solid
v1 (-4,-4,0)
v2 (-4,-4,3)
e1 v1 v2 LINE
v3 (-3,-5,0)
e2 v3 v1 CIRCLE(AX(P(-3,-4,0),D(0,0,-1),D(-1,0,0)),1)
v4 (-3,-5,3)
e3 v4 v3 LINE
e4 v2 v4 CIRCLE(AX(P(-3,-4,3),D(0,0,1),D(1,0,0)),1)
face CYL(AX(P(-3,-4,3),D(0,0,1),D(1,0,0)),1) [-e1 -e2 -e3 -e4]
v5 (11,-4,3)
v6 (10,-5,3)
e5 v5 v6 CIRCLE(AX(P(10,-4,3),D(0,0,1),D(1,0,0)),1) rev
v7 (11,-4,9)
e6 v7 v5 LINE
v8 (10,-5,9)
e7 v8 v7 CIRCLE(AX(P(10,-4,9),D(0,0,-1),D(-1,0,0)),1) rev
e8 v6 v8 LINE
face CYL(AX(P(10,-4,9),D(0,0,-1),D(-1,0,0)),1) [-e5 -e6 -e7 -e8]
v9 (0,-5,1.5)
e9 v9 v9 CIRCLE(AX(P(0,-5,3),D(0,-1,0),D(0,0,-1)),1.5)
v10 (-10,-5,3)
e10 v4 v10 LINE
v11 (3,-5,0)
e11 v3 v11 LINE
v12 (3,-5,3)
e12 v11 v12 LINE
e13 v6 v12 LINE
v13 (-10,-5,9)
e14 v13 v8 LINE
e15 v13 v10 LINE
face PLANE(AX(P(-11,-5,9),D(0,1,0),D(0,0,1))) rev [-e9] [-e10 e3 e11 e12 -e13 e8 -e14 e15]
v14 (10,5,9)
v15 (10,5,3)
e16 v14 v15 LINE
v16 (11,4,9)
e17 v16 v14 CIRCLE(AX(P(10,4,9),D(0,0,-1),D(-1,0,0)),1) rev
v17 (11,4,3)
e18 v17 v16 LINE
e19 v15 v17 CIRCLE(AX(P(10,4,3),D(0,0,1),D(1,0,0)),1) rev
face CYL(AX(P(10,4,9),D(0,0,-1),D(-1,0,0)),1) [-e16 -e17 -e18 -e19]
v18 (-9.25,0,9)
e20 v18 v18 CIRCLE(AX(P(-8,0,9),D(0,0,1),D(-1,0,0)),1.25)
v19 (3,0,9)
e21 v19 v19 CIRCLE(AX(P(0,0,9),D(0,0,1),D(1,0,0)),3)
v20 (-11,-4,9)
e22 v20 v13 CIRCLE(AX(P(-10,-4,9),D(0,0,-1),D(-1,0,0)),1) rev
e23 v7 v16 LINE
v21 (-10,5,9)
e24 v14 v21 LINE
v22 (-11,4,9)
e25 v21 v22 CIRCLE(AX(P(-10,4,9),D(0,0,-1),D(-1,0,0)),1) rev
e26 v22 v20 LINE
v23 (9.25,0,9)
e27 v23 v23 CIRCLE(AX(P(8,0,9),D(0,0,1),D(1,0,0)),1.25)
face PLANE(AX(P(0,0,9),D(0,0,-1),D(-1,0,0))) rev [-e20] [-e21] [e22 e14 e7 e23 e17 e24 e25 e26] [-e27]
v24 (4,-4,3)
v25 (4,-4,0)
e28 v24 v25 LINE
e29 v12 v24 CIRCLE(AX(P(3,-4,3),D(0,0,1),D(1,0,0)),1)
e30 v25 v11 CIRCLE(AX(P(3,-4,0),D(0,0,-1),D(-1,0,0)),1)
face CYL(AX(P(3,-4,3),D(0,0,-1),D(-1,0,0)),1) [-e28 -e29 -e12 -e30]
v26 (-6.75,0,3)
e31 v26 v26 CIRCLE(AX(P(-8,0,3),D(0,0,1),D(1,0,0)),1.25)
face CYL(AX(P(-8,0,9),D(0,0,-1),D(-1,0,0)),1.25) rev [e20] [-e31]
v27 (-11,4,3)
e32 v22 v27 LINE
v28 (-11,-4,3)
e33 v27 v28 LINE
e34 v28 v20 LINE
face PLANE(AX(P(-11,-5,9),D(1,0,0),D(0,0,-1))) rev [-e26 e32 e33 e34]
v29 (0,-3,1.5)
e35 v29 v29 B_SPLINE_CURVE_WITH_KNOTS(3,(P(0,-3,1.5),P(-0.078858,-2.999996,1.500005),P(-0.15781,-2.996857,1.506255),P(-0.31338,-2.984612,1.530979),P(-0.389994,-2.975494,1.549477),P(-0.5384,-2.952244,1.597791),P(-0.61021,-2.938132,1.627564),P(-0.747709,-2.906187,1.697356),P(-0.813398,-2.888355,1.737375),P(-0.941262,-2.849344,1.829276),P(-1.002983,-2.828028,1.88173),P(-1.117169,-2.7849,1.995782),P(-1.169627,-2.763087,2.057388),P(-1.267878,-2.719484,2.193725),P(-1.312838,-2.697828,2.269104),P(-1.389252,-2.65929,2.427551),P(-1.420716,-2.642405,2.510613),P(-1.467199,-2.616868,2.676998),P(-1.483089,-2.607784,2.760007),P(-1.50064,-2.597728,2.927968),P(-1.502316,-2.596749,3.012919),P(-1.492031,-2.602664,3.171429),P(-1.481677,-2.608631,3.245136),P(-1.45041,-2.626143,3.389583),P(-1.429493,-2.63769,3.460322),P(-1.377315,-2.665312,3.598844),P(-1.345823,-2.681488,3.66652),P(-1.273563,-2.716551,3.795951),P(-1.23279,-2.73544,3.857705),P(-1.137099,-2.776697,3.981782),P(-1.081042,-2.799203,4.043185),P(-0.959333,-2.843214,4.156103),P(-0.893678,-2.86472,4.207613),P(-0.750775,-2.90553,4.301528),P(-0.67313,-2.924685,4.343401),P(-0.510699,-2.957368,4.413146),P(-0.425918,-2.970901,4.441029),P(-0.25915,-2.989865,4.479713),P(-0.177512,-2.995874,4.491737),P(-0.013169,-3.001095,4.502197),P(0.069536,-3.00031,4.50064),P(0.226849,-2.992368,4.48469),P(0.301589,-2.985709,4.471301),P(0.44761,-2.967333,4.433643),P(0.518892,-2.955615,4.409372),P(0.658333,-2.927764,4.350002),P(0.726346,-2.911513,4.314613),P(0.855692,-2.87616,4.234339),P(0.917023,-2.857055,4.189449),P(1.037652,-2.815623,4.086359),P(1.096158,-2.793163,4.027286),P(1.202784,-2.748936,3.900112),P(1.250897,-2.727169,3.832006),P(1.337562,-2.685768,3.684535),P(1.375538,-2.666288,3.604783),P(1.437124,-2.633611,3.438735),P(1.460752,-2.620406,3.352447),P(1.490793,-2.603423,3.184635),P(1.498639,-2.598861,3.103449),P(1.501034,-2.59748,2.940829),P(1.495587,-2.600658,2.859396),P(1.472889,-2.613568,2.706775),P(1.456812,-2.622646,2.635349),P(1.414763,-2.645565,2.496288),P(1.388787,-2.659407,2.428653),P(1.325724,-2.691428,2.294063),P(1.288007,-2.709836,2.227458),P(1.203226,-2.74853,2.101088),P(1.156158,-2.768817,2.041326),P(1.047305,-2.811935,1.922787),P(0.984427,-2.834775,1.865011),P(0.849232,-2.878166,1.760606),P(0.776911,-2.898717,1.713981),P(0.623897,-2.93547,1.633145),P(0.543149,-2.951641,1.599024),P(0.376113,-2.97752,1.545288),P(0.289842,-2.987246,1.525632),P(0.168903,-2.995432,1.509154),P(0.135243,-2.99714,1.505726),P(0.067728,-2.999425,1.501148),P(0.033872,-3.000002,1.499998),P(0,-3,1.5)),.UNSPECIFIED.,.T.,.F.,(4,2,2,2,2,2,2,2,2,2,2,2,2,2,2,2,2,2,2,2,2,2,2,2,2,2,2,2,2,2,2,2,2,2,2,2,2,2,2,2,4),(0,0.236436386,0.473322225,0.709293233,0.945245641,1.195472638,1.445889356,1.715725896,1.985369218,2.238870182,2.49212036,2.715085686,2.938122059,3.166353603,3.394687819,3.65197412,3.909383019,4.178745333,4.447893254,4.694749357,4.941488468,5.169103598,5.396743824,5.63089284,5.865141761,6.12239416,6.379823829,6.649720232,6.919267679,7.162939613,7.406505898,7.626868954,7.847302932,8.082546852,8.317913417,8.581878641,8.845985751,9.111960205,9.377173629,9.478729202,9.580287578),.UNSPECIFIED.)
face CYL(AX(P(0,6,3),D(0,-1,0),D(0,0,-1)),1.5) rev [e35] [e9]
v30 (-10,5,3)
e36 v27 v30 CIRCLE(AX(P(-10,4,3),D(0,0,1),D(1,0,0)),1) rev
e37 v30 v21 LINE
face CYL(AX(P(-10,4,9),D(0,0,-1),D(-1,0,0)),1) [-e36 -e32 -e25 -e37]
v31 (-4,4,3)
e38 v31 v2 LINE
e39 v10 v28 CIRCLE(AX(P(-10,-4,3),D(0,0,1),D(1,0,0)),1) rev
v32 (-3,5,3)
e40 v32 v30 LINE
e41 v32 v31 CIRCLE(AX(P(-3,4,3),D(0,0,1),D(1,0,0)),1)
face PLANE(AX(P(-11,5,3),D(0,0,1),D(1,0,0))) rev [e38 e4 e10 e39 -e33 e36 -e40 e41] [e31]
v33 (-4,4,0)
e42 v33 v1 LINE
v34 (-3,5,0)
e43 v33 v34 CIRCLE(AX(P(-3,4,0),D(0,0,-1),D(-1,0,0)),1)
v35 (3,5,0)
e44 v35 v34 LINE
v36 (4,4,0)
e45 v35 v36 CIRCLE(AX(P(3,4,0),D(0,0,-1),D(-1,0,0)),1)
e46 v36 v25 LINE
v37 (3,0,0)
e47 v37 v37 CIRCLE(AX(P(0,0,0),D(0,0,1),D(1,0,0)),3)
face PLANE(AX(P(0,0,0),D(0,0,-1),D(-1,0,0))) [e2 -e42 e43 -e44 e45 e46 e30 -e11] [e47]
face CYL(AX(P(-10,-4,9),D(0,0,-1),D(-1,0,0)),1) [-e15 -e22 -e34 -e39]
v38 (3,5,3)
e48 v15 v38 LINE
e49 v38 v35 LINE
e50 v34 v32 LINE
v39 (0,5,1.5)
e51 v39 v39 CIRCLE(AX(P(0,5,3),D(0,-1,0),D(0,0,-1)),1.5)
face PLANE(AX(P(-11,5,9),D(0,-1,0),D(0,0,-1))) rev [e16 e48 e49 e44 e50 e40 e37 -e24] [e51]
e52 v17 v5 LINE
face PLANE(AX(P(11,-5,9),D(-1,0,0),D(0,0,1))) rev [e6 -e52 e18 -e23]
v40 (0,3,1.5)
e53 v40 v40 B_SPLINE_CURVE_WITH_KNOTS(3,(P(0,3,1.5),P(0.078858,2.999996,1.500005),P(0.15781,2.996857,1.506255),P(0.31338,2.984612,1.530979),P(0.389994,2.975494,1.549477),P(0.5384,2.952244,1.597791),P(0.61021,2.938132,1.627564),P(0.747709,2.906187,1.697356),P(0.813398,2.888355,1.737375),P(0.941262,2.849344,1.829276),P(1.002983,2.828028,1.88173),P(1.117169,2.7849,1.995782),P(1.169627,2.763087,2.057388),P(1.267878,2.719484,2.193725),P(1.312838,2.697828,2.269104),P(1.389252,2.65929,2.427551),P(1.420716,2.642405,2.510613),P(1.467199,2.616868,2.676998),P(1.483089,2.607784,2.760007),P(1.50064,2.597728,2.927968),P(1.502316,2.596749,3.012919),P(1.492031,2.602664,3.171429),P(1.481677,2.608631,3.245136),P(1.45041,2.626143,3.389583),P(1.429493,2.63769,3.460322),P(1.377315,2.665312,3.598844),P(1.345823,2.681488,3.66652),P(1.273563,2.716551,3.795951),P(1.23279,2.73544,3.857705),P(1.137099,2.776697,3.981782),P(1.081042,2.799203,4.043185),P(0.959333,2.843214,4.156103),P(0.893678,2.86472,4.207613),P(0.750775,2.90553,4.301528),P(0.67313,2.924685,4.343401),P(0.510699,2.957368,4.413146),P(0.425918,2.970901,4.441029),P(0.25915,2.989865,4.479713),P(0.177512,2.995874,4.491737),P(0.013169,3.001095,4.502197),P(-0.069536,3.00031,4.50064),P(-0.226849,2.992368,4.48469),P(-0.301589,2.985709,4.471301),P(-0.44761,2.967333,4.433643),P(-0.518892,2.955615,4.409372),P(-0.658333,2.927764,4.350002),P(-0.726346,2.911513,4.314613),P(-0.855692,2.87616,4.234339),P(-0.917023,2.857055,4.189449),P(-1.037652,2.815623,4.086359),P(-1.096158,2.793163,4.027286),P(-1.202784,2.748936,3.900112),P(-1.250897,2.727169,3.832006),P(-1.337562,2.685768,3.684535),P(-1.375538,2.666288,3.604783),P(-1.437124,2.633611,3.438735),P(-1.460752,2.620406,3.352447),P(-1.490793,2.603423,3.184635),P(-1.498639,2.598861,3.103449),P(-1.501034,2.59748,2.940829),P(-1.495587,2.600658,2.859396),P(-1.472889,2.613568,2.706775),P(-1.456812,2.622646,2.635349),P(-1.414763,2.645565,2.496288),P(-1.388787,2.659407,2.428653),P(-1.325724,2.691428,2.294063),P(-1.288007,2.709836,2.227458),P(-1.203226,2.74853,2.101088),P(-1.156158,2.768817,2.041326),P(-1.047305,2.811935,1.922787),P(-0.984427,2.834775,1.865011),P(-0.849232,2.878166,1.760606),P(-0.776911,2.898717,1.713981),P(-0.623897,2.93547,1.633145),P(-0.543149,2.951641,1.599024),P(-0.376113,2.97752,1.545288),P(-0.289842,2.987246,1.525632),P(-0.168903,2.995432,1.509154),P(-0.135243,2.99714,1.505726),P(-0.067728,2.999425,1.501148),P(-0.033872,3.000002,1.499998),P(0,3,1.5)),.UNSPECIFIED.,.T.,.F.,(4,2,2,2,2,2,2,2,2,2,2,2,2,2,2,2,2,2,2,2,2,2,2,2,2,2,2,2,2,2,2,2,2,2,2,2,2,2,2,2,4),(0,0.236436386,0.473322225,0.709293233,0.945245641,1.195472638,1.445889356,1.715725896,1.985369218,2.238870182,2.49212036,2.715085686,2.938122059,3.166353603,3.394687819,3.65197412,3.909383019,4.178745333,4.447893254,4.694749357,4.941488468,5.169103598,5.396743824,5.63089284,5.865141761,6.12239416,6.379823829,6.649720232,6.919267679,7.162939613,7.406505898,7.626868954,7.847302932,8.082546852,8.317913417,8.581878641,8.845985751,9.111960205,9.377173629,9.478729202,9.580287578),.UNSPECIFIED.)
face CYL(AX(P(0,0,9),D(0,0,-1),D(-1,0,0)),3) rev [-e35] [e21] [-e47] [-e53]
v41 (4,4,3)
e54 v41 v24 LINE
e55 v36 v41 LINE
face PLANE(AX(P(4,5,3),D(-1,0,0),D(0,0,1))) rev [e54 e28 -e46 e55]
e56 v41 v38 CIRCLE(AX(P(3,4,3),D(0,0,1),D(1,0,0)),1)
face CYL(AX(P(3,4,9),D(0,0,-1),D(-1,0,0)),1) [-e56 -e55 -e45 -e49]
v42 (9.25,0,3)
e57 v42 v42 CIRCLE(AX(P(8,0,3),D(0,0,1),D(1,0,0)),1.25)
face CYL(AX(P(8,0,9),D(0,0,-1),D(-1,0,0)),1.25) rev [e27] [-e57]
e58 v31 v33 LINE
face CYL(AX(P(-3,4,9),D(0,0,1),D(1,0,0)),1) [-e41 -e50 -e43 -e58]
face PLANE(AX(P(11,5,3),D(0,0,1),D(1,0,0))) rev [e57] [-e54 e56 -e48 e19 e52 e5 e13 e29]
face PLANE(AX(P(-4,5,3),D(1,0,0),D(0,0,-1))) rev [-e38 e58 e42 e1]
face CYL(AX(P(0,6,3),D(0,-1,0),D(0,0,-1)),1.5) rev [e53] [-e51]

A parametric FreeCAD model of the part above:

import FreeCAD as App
import Part
import Sketcher

V = App.Vector
Q = App.Units.Quantity


def edges_at(feature, points):
    """Names of the edges that pass closest to the given points."""
    edges = feature.Shape.Edges
    near = lambda p: min(range(len(edges)), key=lambda i: edges[i].distToShape(Part.Vertex(*p))[0])
    return sorted({f"Edge{near(p) + 1}" for p in points})

doc = App.newDocument("Part")
body = doc.addObject("PartDesign::Body", "Body")

# Sketch on XY plane
sketch1 = body.newObject("Sketcher::SketchObject", "Sketch")
sketch1.AttachmentSupport = (doc.getObject("XY_Plane"), [""])
sketch1.MapMode = "FlatFace"
sketch1.addGeometry([
    Part.LineSegment(V(-11, 5, 0), V(-11, -5, 0)),  # 0
    Part.LineSegment(V(-11, -5, 0), V(11, -5, 0)),  # 1
    Part.LineSegment(V(11, -5, 0), V(11, 5, 0)),  # 2
    Part.LineSegment(V(11, 5, 0), V(-11, 5, 0)),  # 3
    Part.Circle(V(-8, 0, 0), V(0, 0, 1), 1.2),  # 4
    Part.Circle(V(0, 0, 0), V(0, 0, 1), 3),  # 5
    Part.Circle(V(8, 0, 0), V(0, 0, 1), 1.2),  # 6
], False)
sketch1.addConstraint([
    Sketcher.Constraint("Coincident", 0, 2, 1, 1),
    Sketcher.Constraint("Coincident", 1, 2, 2, 1),
    Sketcher.Constraint("Coincident", 2, 2, 3, 1),
    Sketcher.Constraint("Coincident", 3, 2, 0, 1),
    Sketcher.Constraint("Vertical", 0),
    Sketcher.Constraint("Horizontal", 1),
    Sketcher.Constraint("Vertical", 2),
    Sketcher.Constraint("Horizontal", 3),
    Sketcher.Constraint("Coincident", 5, 3, -1, 1),
    Sketcher.Constraint("Equal", 4, 6),
    Sketcher.Constraint("Symmetric", 4, 3, 6, 3, -1, 1),
    Sketcher.Constraint("Symmetric", 0, 2, 2, 2, -1, 1),
    Sketcher.Constraint("PointOnObject", 4, 3, -1),
    Sketcher.Constraint("Diameter", 5, Q("6 mm")),
    Sketcher.Constraint("Diameter", 4, Q("2.5 mm")),
    Sketcher.Constraint("DistanceX", 1, 1, 1, 2, Q("22 mm")),
    Sketcher.Constraint("DistanceY", 0, 2, 0, 1, Q("10 mm")),
    Sketcher.Constraint("DistanceX", 4, 3, -1, 1, Q("8 mm")),
])
pad1 = body.newObject("PartDesign::Pad", "Pad")
pad1.Profile = sketch1
pad1.Length = 9

# Sketch on XZ plane
sketch2 = body.newObject("Sketcher::SketchObject", "Sketch001")
sketch2.AttachmentSupport = (doc.getObject("XZ_Plane"), [""])
sketch2.MapMode = "FlatFace"
sketch2.AttachmentOffset = App.Placement(V(0, 0, 5), App.Rotation())
sketch2.addGeometry(Part.Circle(V(0, 3, 0), V(0, 0, 1), 1.5), False)
sketch2.addConstraint([
    Sketcher.Constraint("PointOnObject", 0, 3, -2),
    Sketcher.Constraint("Diameter", 0, Q("3 mm")),
    Sketcher.Constraint("DistanceY", -1, 1, 0, 3, Q("3 mm")),
])
pocket1 = body.newObject("PartDesign::Pocket", "Pocket")
pocket1.Profile = sketch2
pocket1.Length = 11

# Sketch on XZ plane
sketch3 = body.newObject("Sketcher::SketchObject", "Sketch002")
sketch3.AttachmentSupport = (doc.getObject("XZ_Plane"), [""])
sketch3.MapMode = "FlatFace"
sketch3.AttachmentOffset = App.Placement(V(0, 0, 5), App.Rotation())
sketch3.addGeometry([
    Part.LineSegment(V(-11, 3, 0), V(-11, 0, 0)),  # 0
    Part.LineSegment(V(-11, 0, 0), V(-4, 0, 0)),  # 1
    Part.LineSegment(V(-4, 0, 0), V(-4, 3, 0)),  # 2
    Part.LineSegment(V(-4, 3, 0), V(-11, 3, 0)),  # 3
    Part.LineSegment(V(4, 3, 0), V(4, 0, 0)),  # 4
    Part.LineSegment(V(4, 0, 0), V(11, 0, 0)),  # 5
    Part.LineSegment(V(11, 0, 0), V(11, 3, 0)),  # 6
    Part.LineSegment(V(11, 3, 0), V(4, 3, 0)),  # 7
], False)
sketch3.addConstraint([
    Sketcher.Constraint("Coincident", 0, 2, 1, 1),
    Sketcher.Constraint("Coincident", 1, 2, 2, 1),
    Sketcher.Constraint("Coincident", 2, 2, 3, 1),
    Sketcher.Constraint("Coincident", 3, 2, 0, 1),
    Sketcher.Constraint("Coincident", 4, 2, 5, 1),
    Sketcher.Constraint("Coincident", 5, 2, 6, 1),
    Sketcher.Constraint("Coincident", 6, 2, 7, 1),
    Sketcher.Constraint("Coincident", 7, 2, 4, 1),
    Sketcher.Constraint("Vertical", 0),
    Sketcher.Constraint("Horizontal", 1),
    Sketcher.Constraint("Vertical", 2),
    Sketcher.Constraint("Horizontal", 3),
    Sketcher.Constraint("Vertical", 4),
    Sketcher.Constraint("Horizontal", 5),
    Sketcher.Constraint("Vertical", 6),
    Sketcher.Constraint("Horizontal", 7),
    Sketcher.Constraint("Symmetric", 1, 2, 4, 2, -1, 1),
    Sketcher.Constraint("Symmetric", 0, 2, 5, 2, -2),
    Sketcher.Constraint("Horizontal", 3, 2, 6, 2),
    Sketcher.Constraint("DistanceX", 1, 1, 1, 2, Q("7 mm")),
    Sketcher.Constraint("DistanceY", 0, 2, 0, 1, Q("3 mm")),
    Sketcher.Constraint("DistanceX", 0, 2, -1, 1, Q("11 mm")),
])
pocket2 = body.newObject("PartDesign::Pocket", "Pocket001")
pocket2.Profile = sketch3
pocket2.Length = 10
doc.recompute()

fillet = body.newObject("PartDesign::Fillet", "Fillet")
fillet.Base = (pocket2, edges_at(pocket2, [
    (-4, 5, 1.5),
    (-4, -5, 1.5),
    (4, 5, 1.5),
    (4, -5, 1.5),
    (11, -5, 6),
    (-11, -5, 6),
    (-11, 5, 6),
    (11, 5, 6),
]))
fillet.Radius = 1

doc.recompute()
